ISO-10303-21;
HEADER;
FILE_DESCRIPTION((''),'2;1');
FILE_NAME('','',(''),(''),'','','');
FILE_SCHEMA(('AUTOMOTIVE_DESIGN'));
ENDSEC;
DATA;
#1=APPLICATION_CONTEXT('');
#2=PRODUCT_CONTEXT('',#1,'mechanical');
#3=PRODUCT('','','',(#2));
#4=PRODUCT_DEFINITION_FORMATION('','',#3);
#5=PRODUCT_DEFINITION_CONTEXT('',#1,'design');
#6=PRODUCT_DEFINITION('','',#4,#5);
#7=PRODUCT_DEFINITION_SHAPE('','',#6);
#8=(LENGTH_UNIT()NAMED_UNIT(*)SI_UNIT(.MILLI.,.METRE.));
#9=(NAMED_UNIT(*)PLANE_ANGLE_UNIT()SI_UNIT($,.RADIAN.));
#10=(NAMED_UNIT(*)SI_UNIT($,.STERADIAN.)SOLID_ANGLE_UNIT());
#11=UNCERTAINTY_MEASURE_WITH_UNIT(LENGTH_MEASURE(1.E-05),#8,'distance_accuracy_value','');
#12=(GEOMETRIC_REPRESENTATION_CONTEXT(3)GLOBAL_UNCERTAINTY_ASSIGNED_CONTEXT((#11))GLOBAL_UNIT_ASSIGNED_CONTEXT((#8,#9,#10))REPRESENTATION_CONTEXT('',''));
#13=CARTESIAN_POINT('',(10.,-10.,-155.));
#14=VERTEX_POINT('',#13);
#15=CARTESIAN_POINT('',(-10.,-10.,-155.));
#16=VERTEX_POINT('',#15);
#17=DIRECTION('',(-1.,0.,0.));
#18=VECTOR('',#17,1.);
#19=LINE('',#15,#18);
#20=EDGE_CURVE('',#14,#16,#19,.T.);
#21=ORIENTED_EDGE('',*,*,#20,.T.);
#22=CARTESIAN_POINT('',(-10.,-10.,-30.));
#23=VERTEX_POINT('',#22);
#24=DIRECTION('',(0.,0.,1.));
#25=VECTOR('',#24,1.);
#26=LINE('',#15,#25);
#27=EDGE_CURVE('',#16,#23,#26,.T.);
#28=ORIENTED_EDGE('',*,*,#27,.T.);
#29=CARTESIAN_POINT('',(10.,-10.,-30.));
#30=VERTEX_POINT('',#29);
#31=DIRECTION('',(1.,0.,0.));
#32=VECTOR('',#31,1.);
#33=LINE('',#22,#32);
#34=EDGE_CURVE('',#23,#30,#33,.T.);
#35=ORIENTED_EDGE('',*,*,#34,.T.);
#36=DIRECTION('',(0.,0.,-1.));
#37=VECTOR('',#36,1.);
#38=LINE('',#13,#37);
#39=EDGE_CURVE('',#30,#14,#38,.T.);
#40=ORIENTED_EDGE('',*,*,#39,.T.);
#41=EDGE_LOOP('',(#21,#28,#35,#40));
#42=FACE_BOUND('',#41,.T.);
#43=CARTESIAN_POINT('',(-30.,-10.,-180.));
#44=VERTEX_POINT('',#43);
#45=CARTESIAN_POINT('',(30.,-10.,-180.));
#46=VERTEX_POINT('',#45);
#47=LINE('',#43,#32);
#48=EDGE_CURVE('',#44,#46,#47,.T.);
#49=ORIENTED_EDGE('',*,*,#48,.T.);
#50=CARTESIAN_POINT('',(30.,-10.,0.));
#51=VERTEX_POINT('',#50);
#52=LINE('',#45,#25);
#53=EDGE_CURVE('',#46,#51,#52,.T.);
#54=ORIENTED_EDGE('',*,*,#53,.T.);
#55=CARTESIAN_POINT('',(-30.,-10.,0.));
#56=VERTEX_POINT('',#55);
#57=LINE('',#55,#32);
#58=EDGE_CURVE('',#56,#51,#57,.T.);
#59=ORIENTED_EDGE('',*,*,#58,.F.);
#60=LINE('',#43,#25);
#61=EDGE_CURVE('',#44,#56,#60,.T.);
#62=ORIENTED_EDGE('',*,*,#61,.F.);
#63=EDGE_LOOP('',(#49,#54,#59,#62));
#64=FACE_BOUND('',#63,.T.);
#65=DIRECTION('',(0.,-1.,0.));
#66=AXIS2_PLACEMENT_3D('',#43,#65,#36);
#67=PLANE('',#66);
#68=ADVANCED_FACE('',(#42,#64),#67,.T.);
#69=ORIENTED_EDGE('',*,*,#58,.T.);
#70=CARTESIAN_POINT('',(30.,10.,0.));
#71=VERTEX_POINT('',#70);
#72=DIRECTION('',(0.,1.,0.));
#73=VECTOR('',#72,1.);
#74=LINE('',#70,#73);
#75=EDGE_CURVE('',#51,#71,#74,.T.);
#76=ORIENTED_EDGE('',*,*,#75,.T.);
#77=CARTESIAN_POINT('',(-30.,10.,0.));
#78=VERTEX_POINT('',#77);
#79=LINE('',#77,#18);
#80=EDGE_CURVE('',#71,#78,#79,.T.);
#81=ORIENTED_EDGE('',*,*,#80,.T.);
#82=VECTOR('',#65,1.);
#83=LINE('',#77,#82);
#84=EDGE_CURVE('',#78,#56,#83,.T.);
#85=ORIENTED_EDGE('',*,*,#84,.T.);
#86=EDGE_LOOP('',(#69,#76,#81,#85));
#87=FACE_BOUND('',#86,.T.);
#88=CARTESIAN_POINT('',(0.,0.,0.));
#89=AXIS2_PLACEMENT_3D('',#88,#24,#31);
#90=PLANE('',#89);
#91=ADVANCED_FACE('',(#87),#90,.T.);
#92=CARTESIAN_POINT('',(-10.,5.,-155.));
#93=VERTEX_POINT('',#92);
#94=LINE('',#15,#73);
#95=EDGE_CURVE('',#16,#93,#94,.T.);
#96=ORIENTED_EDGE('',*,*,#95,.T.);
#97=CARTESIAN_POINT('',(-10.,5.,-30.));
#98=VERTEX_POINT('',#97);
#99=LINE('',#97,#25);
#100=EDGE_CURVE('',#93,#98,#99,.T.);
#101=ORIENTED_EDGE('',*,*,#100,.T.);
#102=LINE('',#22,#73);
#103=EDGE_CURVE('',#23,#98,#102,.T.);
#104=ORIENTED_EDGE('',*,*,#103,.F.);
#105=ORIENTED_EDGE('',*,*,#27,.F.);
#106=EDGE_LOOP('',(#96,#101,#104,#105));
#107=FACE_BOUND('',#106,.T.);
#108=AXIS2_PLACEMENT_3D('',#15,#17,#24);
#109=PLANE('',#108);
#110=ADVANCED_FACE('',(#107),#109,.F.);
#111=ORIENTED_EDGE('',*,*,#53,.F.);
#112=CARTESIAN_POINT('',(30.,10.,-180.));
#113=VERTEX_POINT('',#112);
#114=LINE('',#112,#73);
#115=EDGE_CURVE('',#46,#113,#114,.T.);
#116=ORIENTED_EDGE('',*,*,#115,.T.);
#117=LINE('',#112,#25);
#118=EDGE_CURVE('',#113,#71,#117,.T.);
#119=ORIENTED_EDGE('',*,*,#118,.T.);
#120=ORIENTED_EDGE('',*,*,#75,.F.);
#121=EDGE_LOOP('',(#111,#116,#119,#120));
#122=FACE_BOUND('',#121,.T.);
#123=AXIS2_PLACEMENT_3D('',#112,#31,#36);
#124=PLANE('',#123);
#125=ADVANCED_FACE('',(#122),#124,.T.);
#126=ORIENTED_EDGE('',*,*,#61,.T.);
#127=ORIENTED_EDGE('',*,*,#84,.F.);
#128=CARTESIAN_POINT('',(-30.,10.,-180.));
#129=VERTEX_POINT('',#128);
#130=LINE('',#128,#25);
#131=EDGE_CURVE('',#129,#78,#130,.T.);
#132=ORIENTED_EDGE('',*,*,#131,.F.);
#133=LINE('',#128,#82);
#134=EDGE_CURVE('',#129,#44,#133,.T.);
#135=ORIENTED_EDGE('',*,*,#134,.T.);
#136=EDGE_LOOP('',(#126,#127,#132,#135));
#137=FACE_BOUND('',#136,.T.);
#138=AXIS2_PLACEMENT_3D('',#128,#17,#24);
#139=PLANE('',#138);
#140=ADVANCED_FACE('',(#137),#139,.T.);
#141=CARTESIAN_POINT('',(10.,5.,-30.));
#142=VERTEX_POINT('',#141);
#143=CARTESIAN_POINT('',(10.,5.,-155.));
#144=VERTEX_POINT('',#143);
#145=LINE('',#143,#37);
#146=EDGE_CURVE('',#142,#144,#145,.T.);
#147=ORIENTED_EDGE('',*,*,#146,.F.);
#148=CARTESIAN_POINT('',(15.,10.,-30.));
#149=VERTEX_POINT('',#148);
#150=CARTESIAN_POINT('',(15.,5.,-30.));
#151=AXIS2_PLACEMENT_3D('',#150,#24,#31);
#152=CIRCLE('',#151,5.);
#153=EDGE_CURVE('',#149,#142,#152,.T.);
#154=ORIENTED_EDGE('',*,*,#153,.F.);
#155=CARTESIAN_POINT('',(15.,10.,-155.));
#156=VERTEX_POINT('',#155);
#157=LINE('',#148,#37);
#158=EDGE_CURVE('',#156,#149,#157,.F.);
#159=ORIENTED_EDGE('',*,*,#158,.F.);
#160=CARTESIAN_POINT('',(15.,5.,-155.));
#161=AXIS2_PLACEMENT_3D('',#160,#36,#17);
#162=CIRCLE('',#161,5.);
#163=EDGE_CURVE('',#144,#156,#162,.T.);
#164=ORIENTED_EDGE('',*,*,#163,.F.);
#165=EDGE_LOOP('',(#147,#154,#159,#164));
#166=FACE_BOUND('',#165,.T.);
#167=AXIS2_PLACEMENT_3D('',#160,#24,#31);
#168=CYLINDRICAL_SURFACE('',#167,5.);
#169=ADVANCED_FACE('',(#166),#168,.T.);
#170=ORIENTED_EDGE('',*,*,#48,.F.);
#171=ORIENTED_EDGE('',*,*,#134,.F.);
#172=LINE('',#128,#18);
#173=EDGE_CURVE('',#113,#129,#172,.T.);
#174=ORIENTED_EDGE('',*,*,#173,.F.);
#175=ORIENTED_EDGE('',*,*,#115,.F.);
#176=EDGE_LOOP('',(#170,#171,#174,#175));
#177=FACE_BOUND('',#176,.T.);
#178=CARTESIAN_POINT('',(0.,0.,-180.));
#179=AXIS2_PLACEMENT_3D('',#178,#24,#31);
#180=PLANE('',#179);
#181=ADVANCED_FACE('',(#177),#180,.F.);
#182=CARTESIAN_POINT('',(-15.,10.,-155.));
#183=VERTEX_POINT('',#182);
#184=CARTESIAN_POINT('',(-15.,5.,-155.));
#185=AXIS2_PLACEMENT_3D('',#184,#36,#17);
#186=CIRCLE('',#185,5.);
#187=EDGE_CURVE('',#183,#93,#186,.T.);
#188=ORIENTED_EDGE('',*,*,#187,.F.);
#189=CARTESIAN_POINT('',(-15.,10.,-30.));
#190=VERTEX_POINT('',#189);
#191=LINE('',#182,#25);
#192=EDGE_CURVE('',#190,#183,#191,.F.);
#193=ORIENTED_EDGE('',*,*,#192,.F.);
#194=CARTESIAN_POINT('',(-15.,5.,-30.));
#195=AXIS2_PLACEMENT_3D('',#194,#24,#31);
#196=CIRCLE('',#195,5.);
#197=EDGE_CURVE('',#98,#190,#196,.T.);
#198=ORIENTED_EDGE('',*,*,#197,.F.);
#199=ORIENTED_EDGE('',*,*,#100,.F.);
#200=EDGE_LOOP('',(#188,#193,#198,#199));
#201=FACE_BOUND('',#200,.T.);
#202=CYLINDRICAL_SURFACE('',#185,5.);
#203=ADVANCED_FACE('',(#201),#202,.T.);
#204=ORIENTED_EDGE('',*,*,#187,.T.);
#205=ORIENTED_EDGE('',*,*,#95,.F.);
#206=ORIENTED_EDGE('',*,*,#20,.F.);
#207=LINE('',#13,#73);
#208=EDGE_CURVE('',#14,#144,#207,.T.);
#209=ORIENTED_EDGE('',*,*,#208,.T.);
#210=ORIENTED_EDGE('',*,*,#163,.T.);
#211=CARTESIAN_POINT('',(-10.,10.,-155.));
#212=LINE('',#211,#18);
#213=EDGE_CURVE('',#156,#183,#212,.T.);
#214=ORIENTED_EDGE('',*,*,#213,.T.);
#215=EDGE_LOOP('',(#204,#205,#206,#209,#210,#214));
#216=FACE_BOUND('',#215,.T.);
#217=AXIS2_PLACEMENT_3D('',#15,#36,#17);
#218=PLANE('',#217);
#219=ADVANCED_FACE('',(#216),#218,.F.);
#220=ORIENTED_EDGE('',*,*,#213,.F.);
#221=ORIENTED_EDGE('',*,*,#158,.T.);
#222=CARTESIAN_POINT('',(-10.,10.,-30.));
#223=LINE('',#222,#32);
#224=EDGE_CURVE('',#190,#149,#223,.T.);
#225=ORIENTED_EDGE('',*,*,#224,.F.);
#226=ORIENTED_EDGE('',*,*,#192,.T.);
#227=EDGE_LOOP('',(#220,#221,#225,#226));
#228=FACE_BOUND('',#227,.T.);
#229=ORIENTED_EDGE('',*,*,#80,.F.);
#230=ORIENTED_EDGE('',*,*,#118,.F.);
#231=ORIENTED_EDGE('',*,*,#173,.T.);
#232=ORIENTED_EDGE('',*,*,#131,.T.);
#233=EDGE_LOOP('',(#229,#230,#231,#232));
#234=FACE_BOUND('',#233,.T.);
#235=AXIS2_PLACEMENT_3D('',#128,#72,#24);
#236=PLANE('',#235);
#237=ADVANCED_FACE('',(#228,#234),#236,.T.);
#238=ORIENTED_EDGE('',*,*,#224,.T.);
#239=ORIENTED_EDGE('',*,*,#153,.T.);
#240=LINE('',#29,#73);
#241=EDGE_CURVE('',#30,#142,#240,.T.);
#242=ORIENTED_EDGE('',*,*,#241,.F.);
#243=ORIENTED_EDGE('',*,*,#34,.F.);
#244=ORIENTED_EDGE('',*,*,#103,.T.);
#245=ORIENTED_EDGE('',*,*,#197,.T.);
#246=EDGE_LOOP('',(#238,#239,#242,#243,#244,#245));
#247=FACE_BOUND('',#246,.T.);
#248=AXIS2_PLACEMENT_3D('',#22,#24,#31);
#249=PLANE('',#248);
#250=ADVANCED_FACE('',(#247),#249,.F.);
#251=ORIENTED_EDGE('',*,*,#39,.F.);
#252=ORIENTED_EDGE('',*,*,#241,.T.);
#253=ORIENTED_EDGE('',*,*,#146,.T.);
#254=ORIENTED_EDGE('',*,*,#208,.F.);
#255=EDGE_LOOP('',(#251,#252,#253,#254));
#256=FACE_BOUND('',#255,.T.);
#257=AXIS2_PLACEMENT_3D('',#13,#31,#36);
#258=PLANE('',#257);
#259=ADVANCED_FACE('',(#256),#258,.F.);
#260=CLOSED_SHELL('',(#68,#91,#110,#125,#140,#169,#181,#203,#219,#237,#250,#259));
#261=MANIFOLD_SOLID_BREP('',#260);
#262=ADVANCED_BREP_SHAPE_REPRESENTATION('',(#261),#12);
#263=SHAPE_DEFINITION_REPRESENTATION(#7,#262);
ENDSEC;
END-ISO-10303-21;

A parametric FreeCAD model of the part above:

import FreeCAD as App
import Part
import Sketcher


def edges_at(feature, points):
    """Names of the edges that pass closest to the given points."""
    edges = feature.Shape.Edges
    near = lambda p: min(range(len(edges)), key=lambda i: edges[i].distToShape(Part.Vertex(*p))[0])
    return sorted({f"Edge{near(p) + 1}" for p in points})

doc = App.newDocument("Part")
body = doc.addObject("PartDesign::Body", "Body")

sketch1 = body.newObject("Sketcher::SketchObject", "Sketch")
sketch1.AttachmentSupport = (doc.getObject("XY_Plane"), [""])
sketch1.MapMode = "FlatFace"
sketch1.addGeometry([
    Part.LineSegment(App.Vector(-30, 10, 0), App.Vector(-30, -10, 0)),
    Part.LineSegment(App.Vector(-30, -10, 0), App.Vector(30, -10, 0)),
    Part.LineSegment(App.Vector(30, -10, 0), App.Vector(30, 10, 0)),
    Part.LineSegment(App.Vector(30, 10, 0), App.Vector(-30, 10, 0)),
], False)
sketch1.addConstraint([
    Sketcher.Constraint("Coincident", 0, 2, 1, 1),
    Sketcher.Constraint("Coincident", 1, 2, 2, 1),
    Sketcher.Constraint("Coincident", 2, 2, 3, 1),
    Sketcher.Constraint("Coincident", 3, 2, 0, 1),
    Sketcher.Constraint("Vertical", 0),
    Sketcher.Constraint("Horizontal", 1),
    Sketcher.Constraint("Vertical", 2),
    Sketcher.Constraint("Horizontal", 3),
    Sketcher.Constraint("Symmetric", 0, 2, 2, 2, -1, 1),
    Sketcher.Constraint("DistanceX", 1, 1, 1, 2, 60.0),
    Sketcher.Constraint("DistanceY", 0, 2, 0, 1, 20.0),
])
pad1 = body.newObject("PartDesign::Pad", "Pad")
pad1.Profile = sketch1
pad1.Length = 180
pad1.Reversed = True

sketch2 = body.newObject("Sketcher::SketchObject", "Sketch001")
sketch2.AttachmentSupport = (doc.getObject("XZ_Plane"), [""])
sketch2.MapMode = "FlatFace"
sketch2.AttachmentOffset = App.Placement(App.Vector(0, 0, -10), App.Rotation())
sketch2.addGeometry([
    Part.LineSegment(App.Vector(-10, -155, 0), App.Vector(-10, -30, 0)),
    Part.LineSegment(App.Vector(-10, -30, 0), App.Vector(10, -30, 0)),
    Part.LineSegment(App.Vector(10, -30, 0), App.Vector(10, -155, 0)),
    Part.LineSegment(App.Vector(10, -155, 0), App.Vector(-10, -155, 0)),
], False)
sketch2.addConstraint([
    Sketcher.Constraint("Coincident", 0, 2, 1, 1),
    Sketcher.Constraint("Coincident", 1, 2, 2, 1),
    Sketcher.Constraint("Coincident", 2, 2, 3, 1),
    Sketcher.Constraint("Coincident", 3, 2, 0, 1),
    Sketcher.Constraint("Vertical", 0),
    Sketcher.Constraint("Horizontal", 1),
    Sketcher.Constraint("Vertical", 2),
    Sketcher.Constraint("Horizontal", 3),
    Sketcher.Constraint("DistanceX", 1, 1, 1, 2, 20.0),
    Sketcher.Constraint("DistanceY", 0, 1, 0, 2, 125.0),
    Sketcher.Constraint("DistanceX", 0, 2, -1, 1, 10.0),
    Sketcher.Constraint("DistanceY", 0, 2, -1, 1, 30.0),
])
pocket1 = body.newObject("PartDesign::Pocket", "Pocket")
pocket1.Profile = sketch2
pocket1.Type = "ThroughAll"
pocket1.Reversed = True
doc.recompute()

fillet = body.newObject("PartDesign::Fillet", "Fillet")
fillet.Base = (pocket1, edges_at(pocket1, [(10, 10, -92.5), (-10, 10, -92.5)]))
fillet.Radius = 5

doc.recompute()
